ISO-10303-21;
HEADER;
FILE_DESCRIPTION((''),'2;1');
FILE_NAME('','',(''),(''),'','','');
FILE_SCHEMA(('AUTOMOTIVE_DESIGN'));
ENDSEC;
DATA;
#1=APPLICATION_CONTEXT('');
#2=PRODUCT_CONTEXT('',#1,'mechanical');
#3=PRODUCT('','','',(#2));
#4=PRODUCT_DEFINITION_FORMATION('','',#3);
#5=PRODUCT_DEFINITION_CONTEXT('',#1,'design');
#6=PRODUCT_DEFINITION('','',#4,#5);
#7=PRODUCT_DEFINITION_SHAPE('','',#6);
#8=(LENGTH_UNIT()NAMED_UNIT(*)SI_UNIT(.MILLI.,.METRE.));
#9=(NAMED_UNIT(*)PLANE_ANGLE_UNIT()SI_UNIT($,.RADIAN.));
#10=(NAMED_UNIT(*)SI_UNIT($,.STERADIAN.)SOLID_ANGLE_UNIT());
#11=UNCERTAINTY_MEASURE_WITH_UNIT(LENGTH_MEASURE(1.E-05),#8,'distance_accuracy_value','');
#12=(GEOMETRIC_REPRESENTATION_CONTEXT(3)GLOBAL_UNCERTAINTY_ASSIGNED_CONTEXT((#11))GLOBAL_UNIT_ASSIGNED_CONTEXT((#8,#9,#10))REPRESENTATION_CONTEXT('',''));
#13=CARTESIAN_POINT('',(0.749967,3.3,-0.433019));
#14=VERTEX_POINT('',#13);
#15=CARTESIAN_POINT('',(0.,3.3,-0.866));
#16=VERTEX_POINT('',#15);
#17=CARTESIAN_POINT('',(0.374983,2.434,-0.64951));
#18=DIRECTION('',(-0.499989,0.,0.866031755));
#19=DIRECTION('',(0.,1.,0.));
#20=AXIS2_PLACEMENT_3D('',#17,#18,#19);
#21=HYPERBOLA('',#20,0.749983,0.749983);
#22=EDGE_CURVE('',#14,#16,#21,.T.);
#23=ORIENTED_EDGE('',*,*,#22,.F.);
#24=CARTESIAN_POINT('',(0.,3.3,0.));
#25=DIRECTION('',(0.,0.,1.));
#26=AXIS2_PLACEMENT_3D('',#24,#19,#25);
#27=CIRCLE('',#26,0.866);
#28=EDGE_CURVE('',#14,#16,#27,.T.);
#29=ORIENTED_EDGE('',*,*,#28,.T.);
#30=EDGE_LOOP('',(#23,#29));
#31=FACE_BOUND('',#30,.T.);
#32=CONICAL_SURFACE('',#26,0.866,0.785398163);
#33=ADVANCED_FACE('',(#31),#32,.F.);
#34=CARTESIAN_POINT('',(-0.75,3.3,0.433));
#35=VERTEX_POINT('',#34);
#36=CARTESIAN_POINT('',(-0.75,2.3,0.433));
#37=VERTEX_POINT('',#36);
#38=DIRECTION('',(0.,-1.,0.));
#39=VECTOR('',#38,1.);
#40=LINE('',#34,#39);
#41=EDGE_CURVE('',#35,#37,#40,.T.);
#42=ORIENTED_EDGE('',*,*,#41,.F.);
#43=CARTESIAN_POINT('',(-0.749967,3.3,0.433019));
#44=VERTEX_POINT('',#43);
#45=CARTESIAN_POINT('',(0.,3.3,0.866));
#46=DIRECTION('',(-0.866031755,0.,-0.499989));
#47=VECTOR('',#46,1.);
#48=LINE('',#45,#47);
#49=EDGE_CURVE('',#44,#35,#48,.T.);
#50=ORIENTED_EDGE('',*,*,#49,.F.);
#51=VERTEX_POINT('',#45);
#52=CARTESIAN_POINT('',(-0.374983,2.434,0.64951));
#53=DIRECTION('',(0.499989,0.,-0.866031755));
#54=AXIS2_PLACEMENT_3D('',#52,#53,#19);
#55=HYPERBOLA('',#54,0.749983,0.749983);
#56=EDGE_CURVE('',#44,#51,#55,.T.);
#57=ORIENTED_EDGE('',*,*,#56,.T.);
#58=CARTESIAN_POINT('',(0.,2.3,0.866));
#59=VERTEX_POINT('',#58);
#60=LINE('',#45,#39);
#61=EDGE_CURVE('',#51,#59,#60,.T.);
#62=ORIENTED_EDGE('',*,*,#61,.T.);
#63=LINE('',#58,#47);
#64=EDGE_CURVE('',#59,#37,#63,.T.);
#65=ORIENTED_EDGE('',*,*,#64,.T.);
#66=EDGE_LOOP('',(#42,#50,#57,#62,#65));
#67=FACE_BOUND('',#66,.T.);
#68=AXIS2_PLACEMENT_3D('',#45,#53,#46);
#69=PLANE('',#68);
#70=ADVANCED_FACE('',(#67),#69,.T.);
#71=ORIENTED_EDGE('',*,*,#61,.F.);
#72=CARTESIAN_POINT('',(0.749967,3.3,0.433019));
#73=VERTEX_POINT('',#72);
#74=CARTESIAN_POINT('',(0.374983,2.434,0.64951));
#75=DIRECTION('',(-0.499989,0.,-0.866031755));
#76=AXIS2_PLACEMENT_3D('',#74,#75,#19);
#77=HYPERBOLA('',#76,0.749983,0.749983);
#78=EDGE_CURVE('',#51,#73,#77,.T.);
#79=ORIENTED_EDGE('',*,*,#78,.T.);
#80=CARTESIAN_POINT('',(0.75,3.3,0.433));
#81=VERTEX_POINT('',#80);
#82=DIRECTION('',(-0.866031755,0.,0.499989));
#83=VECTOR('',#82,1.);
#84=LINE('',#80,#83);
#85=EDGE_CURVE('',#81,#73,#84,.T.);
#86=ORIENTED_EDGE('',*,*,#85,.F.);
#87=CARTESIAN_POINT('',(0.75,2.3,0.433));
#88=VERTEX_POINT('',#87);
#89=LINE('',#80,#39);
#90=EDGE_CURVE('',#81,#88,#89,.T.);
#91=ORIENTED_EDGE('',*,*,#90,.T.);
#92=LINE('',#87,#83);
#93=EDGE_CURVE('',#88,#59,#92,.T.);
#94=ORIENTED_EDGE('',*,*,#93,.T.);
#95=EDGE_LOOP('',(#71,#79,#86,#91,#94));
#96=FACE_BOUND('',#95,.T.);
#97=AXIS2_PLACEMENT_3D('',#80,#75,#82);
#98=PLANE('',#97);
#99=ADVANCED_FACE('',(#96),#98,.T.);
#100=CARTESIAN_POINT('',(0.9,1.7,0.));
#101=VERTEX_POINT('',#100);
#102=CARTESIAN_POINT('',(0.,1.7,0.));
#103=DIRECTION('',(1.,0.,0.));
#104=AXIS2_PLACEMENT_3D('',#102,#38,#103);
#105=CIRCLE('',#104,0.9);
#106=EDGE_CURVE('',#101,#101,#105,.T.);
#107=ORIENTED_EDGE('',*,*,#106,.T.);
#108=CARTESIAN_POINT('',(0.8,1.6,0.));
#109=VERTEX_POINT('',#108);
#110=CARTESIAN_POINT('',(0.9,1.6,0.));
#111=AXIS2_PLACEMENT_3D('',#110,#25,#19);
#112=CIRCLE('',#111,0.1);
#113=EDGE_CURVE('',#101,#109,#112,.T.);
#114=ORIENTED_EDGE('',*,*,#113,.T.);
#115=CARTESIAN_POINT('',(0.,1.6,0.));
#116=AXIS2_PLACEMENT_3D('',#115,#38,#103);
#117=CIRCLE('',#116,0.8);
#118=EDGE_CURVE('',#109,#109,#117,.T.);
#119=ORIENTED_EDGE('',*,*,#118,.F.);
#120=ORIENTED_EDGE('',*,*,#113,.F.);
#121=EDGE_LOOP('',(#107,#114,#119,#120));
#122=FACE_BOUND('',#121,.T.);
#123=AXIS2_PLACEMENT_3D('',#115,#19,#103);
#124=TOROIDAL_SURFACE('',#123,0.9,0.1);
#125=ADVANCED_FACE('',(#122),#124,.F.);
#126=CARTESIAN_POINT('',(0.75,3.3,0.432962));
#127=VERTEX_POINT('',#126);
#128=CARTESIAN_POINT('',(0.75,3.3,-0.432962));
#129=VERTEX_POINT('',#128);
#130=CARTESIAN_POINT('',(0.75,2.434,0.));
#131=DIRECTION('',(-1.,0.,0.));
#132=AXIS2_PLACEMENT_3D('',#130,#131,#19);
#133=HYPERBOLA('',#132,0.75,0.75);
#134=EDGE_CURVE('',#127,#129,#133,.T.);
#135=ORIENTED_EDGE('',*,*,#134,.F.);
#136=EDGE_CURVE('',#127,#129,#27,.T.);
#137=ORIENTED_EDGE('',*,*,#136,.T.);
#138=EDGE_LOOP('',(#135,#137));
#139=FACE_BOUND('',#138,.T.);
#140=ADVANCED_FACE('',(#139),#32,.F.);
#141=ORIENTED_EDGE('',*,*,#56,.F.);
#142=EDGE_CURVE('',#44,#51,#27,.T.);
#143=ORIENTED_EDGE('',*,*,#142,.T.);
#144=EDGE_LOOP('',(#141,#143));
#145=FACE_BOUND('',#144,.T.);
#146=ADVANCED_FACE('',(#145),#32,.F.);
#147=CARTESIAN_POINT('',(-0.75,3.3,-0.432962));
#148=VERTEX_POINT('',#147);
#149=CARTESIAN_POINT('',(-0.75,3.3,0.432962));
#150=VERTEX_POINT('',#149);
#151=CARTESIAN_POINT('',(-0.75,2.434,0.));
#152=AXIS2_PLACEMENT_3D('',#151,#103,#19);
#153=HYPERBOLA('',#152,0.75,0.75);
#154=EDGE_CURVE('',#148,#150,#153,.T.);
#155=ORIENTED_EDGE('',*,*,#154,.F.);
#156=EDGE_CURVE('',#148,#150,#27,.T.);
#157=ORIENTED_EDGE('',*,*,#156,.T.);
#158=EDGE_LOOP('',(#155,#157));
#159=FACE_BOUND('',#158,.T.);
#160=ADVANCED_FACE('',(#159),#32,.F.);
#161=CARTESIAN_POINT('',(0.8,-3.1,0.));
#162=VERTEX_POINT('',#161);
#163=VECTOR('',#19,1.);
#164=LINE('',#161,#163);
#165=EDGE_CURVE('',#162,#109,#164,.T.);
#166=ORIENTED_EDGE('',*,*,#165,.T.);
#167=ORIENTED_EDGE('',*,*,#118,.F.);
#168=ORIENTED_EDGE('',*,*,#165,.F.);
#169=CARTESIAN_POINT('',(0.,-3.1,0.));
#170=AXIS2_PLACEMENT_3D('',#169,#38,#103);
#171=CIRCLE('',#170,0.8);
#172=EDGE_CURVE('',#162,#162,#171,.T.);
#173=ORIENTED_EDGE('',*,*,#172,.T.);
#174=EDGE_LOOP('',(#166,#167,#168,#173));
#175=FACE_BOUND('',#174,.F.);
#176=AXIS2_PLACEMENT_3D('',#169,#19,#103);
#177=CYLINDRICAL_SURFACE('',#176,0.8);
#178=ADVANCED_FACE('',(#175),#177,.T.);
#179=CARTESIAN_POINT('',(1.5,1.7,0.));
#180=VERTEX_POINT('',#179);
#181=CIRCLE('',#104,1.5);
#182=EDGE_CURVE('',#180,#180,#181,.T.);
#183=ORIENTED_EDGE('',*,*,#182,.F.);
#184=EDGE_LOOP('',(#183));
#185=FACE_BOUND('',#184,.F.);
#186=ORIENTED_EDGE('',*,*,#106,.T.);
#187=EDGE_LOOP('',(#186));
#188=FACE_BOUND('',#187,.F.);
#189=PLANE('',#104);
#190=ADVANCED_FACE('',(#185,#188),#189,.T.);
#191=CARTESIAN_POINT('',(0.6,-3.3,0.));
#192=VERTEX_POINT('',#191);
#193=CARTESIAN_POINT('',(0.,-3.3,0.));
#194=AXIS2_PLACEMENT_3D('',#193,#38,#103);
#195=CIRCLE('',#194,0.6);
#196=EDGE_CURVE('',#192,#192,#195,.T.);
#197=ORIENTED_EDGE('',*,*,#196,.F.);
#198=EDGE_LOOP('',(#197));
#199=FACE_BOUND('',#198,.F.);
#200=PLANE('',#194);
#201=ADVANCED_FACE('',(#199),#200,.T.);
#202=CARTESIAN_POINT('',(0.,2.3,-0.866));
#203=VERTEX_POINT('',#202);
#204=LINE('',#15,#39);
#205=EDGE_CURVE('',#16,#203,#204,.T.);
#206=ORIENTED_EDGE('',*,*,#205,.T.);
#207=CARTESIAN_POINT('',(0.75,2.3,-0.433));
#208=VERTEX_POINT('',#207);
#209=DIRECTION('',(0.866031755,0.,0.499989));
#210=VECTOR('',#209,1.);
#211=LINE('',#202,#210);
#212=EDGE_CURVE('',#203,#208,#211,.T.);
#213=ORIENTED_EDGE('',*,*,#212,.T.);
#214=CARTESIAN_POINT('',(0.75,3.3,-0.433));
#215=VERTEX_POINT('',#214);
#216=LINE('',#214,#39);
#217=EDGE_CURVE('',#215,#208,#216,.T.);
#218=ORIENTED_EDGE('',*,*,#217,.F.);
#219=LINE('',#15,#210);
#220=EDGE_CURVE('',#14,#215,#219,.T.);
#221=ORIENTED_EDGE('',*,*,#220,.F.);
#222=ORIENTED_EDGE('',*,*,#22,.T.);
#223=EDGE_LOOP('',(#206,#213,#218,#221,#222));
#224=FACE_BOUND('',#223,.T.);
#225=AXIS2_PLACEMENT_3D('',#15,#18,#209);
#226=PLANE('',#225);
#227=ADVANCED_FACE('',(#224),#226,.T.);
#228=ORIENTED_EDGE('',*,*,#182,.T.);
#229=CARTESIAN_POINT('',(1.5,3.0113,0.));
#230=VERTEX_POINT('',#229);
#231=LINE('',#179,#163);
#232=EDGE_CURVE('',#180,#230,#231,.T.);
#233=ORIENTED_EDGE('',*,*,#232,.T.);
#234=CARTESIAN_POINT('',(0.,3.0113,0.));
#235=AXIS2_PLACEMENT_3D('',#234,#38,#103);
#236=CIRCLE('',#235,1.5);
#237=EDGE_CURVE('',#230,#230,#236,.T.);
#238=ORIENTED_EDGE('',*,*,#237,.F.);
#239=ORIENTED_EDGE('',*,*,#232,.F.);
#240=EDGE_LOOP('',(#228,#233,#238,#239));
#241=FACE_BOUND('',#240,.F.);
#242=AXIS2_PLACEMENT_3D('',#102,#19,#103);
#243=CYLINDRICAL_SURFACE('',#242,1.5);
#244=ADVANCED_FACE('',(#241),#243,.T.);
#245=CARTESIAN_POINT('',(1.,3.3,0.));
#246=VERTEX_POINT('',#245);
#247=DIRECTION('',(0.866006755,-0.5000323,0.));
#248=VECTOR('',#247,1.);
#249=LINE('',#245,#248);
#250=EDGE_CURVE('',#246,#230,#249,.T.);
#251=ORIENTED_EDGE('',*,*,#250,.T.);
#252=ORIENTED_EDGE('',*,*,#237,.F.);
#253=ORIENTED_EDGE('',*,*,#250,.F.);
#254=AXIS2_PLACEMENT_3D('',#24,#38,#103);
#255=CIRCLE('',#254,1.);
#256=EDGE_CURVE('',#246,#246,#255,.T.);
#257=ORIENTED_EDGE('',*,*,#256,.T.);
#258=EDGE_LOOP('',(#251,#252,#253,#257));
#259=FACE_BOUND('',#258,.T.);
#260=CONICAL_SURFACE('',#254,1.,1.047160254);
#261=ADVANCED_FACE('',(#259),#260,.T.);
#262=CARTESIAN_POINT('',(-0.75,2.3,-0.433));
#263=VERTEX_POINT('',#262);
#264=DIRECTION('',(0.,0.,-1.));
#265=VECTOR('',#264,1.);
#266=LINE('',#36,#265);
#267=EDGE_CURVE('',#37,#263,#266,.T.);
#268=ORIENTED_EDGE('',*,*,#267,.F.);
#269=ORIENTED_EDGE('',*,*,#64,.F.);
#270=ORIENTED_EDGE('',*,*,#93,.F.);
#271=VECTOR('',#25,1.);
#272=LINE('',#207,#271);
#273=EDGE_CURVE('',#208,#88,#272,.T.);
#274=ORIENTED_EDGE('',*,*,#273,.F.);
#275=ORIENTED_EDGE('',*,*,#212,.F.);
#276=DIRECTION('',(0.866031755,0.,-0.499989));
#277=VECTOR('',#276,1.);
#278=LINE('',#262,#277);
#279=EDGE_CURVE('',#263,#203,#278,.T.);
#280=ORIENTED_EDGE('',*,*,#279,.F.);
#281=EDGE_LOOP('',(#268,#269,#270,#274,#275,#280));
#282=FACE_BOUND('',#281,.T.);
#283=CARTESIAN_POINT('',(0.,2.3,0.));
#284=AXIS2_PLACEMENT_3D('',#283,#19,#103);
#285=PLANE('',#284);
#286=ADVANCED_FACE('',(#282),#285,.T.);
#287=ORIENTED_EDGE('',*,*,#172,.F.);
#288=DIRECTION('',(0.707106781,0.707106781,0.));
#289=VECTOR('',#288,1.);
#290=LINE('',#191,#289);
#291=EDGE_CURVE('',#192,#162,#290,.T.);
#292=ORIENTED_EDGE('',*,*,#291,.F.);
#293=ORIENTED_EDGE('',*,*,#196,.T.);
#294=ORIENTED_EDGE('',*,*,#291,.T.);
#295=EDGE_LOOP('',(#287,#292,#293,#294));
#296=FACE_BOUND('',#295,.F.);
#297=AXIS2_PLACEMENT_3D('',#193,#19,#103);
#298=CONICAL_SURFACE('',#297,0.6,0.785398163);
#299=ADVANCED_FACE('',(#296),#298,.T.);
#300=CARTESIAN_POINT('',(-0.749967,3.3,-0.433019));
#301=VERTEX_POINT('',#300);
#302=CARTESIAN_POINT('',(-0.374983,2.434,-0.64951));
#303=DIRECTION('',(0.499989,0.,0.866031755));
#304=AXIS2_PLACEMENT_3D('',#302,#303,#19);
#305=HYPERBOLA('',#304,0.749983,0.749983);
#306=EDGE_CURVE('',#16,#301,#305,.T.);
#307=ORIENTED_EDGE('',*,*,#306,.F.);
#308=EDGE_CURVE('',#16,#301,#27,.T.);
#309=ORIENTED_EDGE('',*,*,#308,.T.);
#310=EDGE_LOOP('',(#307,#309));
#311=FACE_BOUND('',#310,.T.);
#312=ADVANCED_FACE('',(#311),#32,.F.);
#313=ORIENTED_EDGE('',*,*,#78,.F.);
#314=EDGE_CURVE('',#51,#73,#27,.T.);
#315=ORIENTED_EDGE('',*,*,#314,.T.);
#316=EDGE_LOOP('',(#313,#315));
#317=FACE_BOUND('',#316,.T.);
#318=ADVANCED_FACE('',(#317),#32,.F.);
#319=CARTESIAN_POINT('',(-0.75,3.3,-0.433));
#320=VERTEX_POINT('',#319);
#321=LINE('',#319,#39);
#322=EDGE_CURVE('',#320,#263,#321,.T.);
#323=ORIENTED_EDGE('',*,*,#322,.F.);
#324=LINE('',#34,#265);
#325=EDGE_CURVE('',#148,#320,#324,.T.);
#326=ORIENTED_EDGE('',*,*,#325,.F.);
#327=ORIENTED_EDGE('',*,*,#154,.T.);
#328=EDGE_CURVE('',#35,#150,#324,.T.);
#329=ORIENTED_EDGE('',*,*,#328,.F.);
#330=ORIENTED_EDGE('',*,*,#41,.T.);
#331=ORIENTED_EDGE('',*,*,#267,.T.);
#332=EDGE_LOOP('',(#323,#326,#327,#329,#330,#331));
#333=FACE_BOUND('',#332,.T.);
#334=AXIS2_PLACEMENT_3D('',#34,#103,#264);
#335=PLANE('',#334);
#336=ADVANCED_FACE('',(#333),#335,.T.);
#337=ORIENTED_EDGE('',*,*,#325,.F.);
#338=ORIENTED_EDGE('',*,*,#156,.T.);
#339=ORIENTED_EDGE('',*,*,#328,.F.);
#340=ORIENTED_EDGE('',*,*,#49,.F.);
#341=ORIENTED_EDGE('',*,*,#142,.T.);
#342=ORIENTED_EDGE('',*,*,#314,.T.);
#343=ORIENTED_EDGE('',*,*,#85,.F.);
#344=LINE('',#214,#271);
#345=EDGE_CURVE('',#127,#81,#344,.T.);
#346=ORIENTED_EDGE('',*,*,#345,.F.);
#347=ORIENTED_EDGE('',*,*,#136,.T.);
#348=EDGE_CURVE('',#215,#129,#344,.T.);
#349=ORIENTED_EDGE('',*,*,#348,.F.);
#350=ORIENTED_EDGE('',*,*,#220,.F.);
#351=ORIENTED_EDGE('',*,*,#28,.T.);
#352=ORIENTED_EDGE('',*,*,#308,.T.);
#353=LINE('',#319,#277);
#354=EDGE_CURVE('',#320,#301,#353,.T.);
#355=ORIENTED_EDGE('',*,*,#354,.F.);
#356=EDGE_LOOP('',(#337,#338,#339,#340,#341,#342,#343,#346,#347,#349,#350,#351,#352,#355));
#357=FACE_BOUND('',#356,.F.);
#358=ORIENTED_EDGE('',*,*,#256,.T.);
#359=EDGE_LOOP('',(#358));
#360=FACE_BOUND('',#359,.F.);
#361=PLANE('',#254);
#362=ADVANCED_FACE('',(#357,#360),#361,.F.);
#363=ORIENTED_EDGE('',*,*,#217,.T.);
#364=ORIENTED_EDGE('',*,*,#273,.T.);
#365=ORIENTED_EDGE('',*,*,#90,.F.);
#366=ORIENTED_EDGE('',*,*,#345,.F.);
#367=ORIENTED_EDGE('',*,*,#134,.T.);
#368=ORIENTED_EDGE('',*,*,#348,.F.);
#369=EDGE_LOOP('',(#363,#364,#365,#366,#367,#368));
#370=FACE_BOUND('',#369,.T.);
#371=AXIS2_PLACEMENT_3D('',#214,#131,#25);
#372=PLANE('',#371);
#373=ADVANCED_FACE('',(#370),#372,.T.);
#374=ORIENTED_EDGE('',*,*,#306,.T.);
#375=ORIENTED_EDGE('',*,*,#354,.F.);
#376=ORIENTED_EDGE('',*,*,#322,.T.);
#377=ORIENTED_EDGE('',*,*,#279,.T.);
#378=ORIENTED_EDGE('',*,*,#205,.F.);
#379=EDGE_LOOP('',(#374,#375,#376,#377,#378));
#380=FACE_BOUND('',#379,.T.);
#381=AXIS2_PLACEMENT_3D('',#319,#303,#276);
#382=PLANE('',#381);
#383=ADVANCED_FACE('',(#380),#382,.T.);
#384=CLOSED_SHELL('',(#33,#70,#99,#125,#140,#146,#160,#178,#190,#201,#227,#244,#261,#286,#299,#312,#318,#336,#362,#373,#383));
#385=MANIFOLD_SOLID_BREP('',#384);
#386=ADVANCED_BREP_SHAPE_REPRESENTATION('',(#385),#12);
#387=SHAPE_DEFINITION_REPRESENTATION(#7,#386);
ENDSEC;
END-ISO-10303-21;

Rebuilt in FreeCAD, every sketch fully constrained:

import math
import FreeCAD as App
import Part
import Sketcher
from FreeCAD import Vector
Q = App.Units.Quantity

doc = App.newDocument("Part")
params = doc.addObject("Spreadsheet::Sheet", "Params")
for row, (alias, value) in enumerate([
    ("sketch1_radius", "0.1 mm"),
    ("sketch1_width", "1 mm"),
    ("revolution_angle", "360 deg"),
    ("pocket1_length", "1 mm"),
    ("sketch3_width", "0.5 mm"),
    ("groove_angle", "360 deg"),
], start=1):
    params.set(f"A{row}", alias)
    params.set(f"B{row}", "=" + value)
    params.setAlias(f"B{row}", alias)

body = doc.addObject("PartDesign::Body", "Body")

# Sketch on XY plane
sketch1 = doc.addObject("Sketcher::SketchObject", "Sketch")
body.addObject(sketch1)
sketch1.AttachmentSupport = (doc.XY_Plane, [""])
sketch1.MapMode = "FlatFace"
sketch1.addGeometry([
    Part.LineSegment(Vector(1, 3.3, 0), Vector(0, 3.3, 0)),  # 0
    Part.LineSegment(Vector(0, 3.3, 0), Vector(0, -3.3, 0)),  # 1
    Part.LineSegment(Vector(0, -3.3, 0), Vector(0.6, -3.3, 0)),  # 2
    Part.LineSegment(Vector(0.6, -3.3, 0), Vector(0.8, -3.1, 0)),  # 3
    Part.LineSegment(Vector(0.8, -3.1, 0), Vector(0.8, 1.6, 0)),  # 4
    Part.ArcOfCircle(Part.Circle(Vector(0.9, 1.6, 0), Vector(0, 0, 1), 0.1), math.radians(90), math.radians(180)),  # 5
    Part.LineSegment(Vector(0.9, 1.7, 0), Vector(1.5, 1.7, 0)),  # 6
    Part.LineSegment(Vector(1.5, 1.7, 0), Vector(1.5, 3.01, 0)),  # 7
    Part.LineSegment(Vector(1.5, 3.01, 0), Vector(1, 3.3, 0)),  # 8
], False)
sketch1.addConstraint([
    Sketcher.Constraint("Coincident", 0, 2, 1, 1),
    Sketcher.Constraint("Coincident", 1, 2, 2, 1),
    Sketcher.Constraint("Coincident", 2, 2, 3, 1),
    Sketcher.Constraint("Coincident", 3, 2, 4, 1),
    Sketcher.Constraint("Tangent", 4, 2, 5, 2),
    Sketcher.Constraint("Tangent", 5, 1, 6, 1),
    Sketcher.Constraint("Coincident", 6, 2, 7, 1),
    Sketcher.Constraint("Coincident", 7, 2, 8, 1),
    Sketcher.Constraint("Coincident", 8, 2, 0, 1),
    Sketcher.Constraint("Horizontal", 0),
    Sketcher.Constraint("Vertical", 1),
    Sketcher.Constraint("Horizontal", 2),
    Sketcher.Constraint("Vertical", 4),
    Sketcher.Constraint("Horizontal", 6),
    Sketcher.Constraint("Vertical", 7),
    Sketcher.Constraint("Symmetric", 0, 2, 1, 2, -1, 1),
    Sketcher.Constraint("Equal", 2, 6),
    Sketcher.Constraint("Radius", 5, Q("0.1 mm")),
    Sketcher.Constraint("DistanceY", 2, 2, 5, 1, Q("5 mm")),
    Sketcher.Constraint("DistanceY", -1, 1, 5, 3, Q("1.6 mm")),
    Sketcher.Constraint("DistanceX", 2, 2, 3, 2, Q("0.2 mm")),
    Sketcher.Constraint("DistanceY", 2, 2, 3, 2, Q("0.2 mm")),
    Sketcher.Constraint("DistanceX", 8, 2, 7, 2, Q("0.5 mm")),
    Sketcher.Constraint("DistanceX", 0, 2, 0, 1, Q("1 mm")),
    Sketcher.Constraint("DistanceY", 7, 1, 7, 2, Q("1.3113 mm")),
])
sketch1.setExpression("Constraints[17]", "Params.sketch1_radius")
sketch1.setExpression("Constraints[23]", "Params.sketch1_width")
revolution = doc.addObject("PartDesign::Revolution", "Revolution")
body.addObject(revolution)
revolution.Profile = sketch1
revolution.ReferenceAxis = (sketch1, ["V_Axis"])
revolution.setExpression("Angle", "Params.revolution_angle")

# Sketch on XZ plane
sketch2 = doc.addObject("Sketcher::SketchObject", "Sketch001")
body.addObject(sketch2)
sketch2.AttachmentSupport = (doc.XZ_Plane, [""])
sketch2.MapMode = "FlatFace"
sketch2.AttachmentOffset = App.Placement(Vector(0, 0, -3.3), App.Rotation())
sketch2.addGeometry([
    Part.LineSegment(Vector(-0.8, 0.4, 0), Vector(0, 0.9, 0)),  # 0
    Part.LineSegment(Vector(0, 0.9, 0), Vector(0.8, 0.4, 0)),  # 1
    Part.LineSegment(Vector(0.8, 0.4, 0), Vector(0.8, -0.4, 0)),  # 2
    Part.LineSegment(Vector(0.8, -0.4, 0), Vector(0, -0.9, 0)),  # 3
    Part.LineSegment(Vector(0, -0.9, 0), Vector(-0.8, -0.4, 0)),  # 4
    Part.LineSegment(Vector(-0.8, -0.4, 0), Vector(-0.8, 0.4, 0)),  # 5
], False)
sketch2.addConstraint([
    Sketcher.Constraint("Coincident", 0, 2, 1, 1),
    Sketcher.Constraint("Coincident", 1, 2, 2, 1),
    Sketcher.Constraint("Coincident", 2, 2, 3, 1),
    Sketcher.Constraint("Coincident", 3, 2, 4, 1),
    Sketcher.Constraint("Coincident", 4, 2, 5, 1),
    Sketcher.Constraint("Coincident", 5, 2, 0, 1),
    Sketcher.Constraint("Vertical", 2),
    Sketcher.Constraint("Vertical", 5),
    Sketcher.Constraint("Symmetric", 0, 2, 3, 2, -1, 1),
    Sketcher.Constraint("Symmetric", 1, 2, 4, 2, -1, 1),
    Sketcher.Constraint("PointOnObject", 0, 2, -2),
    Sketcher.Constraint("Parallel", 0, 3),
    Sketcher.Constraint("Horizontal", 2, 2, 4, 2),
    Sketcher.Constraint("DistanceX", 4, 2, 2, 2, Q("1.5 mm")),
    Sketcher.Constraint("Angle", 0, Q("29.9993 deg")),
    Sketcher.Constraint("DistanceY", 2, 2, 2, 1, Q("0.866 mm")),
])
pocket1 = doc.addObject("PartDesign::Pocket", "Pocket")
body.addObject(pocket1)
pocket1.Profile = sketch2
pocket1.setExpression("Length", "Params.pocket1_length")
pocket1.Reversed = True

# Sketch on YZ plane
sketch3 = doc.addObject("Sketcher::SketchObject", "Sketch002")
body.addObject(sketch3)
sketch3.AttachmentSupport = (doc.YZ_Plane, [""])
sketch3.MapMode = "FlatFace"
sketch3.addGeometry([
    Part.LineSegment(Vector(3.3, 0.4, 0), Vector(3.3, 0.9, 0)),
    Part.LineSegment(Vector(3.3, 0.9, 0), Vector(2.8, 0.4, 0)),
    Part.LineSegment(Vector(2.8, 0.4, 0), Vector(3.3, 0.4, 0)),
], False)
sketch3.addConstraint([
    Sketcher.Constraint("Coincident", 0, 2, 1, 1),
    Sketcher.Constraint("Coincident", 1, 2, 2, 1),
    Sketcher.Constraint("Coincident", 2, 2, 0, 1),
    Sketcher.Constraint("Vertical", 0),
    Sketcher.Constraint("Horizontal", 2),
    Sketcher.Constraint("Equal", 2, 0),
    Sketcher.Constraint("DistanceX", 2, 1, 2, 2, Q("0.5 mm")),
    Sketcher.Constraint("DistanceX", -1, 1, 0, 2, Q("3.3 mm")),
    Sketcher.Constraint("DistanceY", -1, 1, 0, 2, Q("0.866 mm")),
])
sketch3.setExpression("Constraints[6]", "Params.sketch3_width")
groove = doc.addObject("PartDesign::Groove", "Groove")
body.addObject(groove)
groove.Profile = sketch3
groove.ReferenceAxis = (sketch3, ["H_Axis"])
groove.setExpression("Angle", "Params.groove_angle")

doc.recompute()
